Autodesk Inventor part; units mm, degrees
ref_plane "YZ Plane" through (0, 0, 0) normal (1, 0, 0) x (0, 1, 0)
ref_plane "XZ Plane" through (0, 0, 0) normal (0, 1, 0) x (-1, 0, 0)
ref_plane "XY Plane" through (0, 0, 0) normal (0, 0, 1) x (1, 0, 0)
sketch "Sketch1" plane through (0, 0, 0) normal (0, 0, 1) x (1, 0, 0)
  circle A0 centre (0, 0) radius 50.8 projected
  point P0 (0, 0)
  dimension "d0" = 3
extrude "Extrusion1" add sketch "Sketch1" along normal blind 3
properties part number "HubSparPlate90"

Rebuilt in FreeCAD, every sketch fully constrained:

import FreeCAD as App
import Part
import Sketcher

V = App.Vector
Q = App.Units.Quantity

doc = App.newDocument("Part")
body = doc.addObject("PartDesign::Body", "Body")

sketch1 = doc.addObject("Sketcher::SketchObject", "Sketch")
body.addObject(sketch1)
sketch1.AttachmentSupport = (doc.XY_Plane, [""])
sketch1.MapMode = "FlatFace"
sketch1.addGeometry(Part.Circle(V(0, 0, 0), V(0, 0, 1), 51), False)
sketch1.addConstraint(Sketcher.Constraint("Coincident", 0, 3, -1, 1))
sketch1.addConstraint(Sketcher.Constraint("Diameter", 0, Q("4 in")))
pad1 = doc.addObject("PartDesign::Pad", "Pad")
body.addObject(pad1)
pad1.Profile = sketch1
pad1.Length = Q("0.1181102 in")

doc.recompute()
